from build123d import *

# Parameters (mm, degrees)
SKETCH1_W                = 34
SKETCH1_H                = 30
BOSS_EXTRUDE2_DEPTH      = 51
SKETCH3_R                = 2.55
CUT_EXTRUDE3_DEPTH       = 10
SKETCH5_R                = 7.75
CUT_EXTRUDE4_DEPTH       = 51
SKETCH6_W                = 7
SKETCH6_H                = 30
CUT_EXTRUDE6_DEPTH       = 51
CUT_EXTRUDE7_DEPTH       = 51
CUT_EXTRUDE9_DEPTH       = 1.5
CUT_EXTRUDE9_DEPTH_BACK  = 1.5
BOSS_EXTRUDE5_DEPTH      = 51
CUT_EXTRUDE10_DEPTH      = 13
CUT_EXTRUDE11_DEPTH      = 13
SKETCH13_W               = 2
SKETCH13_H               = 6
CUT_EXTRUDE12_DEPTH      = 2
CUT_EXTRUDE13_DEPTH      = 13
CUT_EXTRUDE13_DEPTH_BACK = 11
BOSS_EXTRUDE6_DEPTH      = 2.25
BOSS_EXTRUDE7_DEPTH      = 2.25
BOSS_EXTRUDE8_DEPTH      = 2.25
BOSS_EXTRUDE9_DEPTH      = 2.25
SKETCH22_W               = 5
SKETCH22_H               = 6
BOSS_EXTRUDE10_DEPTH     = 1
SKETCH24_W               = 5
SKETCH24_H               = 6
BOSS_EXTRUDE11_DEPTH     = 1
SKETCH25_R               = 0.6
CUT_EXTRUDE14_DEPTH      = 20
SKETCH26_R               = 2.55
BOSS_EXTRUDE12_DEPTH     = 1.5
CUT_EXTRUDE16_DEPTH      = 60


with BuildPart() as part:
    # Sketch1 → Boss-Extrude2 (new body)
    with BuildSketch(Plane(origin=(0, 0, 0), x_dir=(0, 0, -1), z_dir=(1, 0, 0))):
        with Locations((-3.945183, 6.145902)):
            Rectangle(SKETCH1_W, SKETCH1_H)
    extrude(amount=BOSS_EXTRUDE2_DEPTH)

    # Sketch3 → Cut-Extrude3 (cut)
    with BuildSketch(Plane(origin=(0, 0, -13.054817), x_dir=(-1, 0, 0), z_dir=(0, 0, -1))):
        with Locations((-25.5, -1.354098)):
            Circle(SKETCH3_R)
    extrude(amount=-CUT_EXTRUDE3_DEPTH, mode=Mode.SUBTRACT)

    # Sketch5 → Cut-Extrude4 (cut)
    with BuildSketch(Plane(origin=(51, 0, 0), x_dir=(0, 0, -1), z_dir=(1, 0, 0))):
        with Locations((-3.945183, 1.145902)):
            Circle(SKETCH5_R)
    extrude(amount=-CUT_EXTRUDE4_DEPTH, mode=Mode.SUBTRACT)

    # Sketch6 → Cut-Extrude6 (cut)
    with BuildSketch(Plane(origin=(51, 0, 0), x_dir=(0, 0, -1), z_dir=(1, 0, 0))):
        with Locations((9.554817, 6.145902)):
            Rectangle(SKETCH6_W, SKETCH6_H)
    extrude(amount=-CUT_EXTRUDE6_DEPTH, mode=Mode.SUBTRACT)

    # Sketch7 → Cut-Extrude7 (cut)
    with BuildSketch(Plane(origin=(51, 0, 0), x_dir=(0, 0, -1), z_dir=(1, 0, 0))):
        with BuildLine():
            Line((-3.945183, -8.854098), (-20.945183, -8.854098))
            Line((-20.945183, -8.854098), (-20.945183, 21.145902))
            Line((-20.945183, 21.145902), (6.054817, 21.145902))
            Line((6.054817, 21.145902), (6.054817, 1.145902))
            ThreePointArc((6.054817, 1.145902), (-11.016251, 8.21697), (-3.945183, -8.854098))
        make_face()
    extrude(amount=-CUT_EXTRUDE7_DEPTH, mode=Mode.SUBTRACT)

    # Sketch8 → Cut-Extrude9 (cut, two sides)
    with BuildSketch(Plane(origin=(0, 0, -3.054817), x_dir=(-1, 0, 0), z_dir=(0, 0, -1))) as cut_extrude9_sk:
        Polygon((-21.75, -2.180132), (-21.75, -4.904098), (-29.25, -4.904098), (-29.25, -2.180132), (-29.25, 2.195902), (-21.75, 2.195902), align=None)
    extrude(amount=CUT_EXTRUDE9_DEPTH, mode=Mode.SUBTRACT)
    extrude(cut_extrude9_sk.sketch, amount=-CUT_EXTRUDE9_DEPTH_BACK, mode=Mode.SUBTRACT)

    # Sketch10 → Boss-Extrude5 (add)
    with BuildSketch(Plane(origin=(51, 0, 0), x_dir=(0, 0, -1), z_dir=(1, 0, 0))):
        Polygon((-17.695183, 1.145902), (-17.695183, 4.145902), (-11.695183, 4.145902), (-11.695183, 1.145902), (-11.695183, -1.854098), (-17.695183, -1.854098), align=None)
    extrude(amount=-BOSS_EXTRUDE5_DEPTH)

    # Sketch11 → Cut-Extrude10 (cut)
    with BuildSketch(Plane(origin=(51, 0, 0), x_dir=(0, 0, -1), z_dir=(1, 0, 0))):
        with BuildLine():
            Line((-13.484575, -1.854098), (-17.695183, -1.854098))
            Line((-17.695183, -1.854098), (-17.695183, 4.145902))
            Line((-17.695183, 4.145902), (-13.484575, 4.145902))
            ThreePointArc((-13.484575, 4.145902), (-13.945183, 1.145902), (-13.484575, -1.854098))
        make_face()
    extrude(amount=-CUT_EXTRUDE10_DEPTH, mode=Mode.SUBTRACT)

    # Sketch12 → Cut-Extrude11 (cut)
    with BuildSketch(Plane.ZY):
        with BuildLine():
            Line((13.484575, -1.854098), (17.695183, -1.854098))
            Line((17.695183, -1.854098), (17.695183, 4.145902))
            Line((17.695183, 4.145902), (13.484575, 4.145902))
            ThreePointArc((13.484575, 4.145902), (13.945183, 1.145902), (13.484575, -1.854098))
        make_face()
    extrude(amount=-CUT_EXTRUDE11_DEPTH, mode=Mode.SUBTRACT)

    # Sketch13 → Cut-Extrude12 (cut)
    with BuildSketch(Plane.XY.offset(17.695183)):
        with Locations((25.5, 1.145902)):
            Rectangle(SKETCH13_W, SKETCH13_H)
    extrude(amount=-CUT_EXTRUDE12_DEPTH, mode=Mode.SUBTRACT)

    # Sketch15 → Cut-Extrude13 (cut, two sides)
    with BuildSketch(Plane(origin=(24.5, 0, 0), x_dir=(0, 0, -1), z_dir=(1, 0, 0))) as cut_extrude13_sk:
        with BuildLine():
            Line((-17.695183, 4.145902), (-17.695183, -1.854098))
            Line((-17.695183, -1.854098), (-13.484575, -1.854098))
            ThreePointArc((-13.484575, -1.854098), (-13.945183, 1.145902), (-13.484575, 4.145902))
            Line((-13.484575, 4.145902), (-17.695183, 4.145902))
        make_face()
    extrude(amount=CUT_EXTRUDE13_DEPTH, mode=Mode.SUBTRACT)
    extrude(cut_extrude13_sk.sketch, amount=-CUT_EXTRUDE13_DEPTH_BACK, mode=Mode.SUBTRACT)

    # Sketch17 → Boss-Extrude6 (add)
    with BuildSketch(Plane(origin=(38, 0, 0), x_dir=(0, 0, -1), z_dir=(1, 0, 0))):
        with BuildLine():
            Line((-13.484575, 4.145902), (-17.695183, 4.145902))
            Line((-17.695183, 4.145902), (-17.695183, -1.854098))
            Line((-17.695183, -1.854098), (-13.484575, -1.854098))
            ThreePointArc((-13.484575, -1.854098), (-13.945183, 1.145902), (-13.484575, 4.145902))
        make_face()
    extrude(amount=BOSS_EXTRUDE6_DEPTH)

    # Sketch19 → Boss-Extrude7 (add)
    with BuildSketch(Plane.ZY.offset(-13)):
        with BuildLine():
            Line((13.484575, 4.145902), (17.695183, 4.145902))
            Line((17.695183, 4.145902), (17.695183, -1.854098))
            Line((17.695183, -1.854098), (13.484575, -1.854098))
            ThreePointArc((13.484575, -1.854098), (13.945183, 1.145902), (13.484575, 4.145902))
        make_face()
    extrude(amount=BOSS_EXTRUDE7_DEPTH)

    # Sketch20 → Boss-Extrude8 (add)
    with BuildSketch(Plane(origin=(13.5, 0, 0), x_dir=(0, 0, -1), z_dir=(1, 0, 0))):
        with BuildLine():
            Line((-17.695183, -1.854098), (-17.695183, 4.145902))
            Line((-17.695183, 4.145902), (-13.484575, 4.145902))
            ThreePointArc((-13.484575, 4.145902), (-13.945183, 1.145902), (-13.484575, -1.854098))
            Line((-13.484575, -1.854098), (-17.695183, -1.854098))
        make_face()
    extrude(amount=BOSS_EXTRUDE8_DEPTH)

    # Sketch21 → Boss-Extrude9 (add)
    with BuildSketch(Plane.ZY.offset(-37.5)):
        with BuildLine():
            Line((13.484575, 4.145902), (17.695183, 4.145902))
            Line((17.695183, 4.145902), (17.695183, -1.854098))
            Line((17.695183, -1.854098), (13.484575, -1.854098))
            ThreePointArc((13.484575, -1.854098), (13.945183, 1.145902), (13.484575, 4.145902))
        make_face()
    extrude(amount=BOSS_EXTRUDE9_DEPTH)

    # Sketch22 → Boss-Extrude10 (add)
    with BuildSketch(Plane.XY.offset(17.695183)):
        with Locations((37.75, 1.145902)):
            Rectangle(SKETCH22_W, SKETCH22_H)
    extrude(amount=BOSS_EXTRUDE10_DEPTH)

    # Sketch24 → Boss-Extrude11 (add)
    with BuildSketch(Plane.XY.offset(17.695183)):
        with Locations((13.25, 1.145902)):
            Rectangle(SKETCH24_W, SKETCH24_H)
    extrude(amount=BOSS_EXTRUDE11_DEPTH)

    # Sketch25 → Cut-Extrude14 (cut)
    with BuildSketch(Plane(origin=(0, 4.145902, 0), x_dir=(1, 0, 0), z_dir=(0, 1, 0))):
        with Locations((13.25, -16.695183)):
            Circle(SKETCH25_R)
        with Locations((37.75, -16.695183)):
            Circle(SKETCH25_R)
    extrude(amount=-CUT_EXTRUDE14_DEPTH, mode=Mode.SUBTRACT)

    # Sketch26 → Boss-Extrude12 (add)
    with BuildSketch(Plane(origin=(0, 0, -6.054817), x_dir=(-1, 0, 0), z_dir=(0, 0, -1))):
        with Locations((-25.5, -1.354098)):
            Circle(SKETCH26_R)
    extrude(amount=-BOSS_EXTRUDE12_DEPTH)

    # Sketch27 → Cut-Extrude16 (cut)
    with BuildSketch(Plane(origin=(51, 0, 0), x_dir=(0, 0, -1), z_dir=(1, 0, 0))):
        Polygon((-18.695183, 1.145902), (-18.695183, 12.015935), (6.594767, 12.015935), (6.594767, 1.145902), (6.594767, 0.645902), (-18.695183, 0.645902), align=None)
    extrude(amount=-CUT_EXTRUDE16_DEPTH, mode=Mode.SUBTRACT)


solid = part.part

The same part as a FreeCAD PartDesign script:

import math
import FreeCAD as App
import Part
import Sketcher
from FreeCAD import Vector

doc = App.newDocument("Part")
body = doc.addObject("PartDesign::Body", "Body")

# Sketch on YZ plane
sketch1 = doc.addObject("Sketcher::SketchObject", "Sketch")
body.addObject(sketch1)
sketch1.AttachmentSupport = (doc.YZ_Plane, [""])
sketch1.MapMode = "FlatFace"
sketch1.addGeometry([
    Part.LineSegment(Vector(21, 21, 0), Vector(-9, 21, 0)),
    Part.LineSegment(Vector(-9, 21, 0), Vector(-9, -13, 0)),
    Part.LineSegment(Vector(-9, -13, 0), Vector(21, -13, 0)),
    Part.LineSegment(Vector(21, -13, 0), Vector(21, 21, 0)),
], False)
sketch1.addConstraint([
    Sketcher.Constraint("Coincident", 0, 2, 1, 1),
    Sketcher.Constraint("Coincident", 1, 2, 2, 1),
    Sketcher.Constraint("Coincident", 2, 2, 3, 1),
    Sketcher.Constraint("Coincident", 3, 2, 0, 1),
    Sketcher.Constraint("Horizontal", 0),
    Sketcher.Constraint("Vertical", 1),
    Sketcher.Constraint("Horizontal", 2),
    Sketcher.Constraint("Vertical", 3),
    Sketcher.Constraint("DistanceX", 0, 2, 0, 1, 30.0),
    Sketcher.Constraint("DistanceY", 1, 2, 1, 1, 34.0),
    Sketcher.Constraint("DistanceX", -1, 1, 2, 2, 21.145902),
    Sketcher.Constraint("DistanceY", -1, 1, 0, 2, 20.945183),
])
pad1 = doc.addObject("PartDesign::Pad", "Pad")
body.addObject(pad1)
pad1.Profile = sketch1
pad1.Length = 51

# Sketch on XY plane
sketch2 = doc.addObject("Sketcher::SketchObject", "Sketch001")
body.addObject(sketch2)
sketch2.AttachmentSupport = (doc.XY_Plane, [""])
sketch2.MapMode = "FlatFace"
sketch2.AttachmentOffset = App.Placement(Vector(0, 0, -13.054817), App.Rotation())
sketch2.addGeometry(Part.Circle(Vector(25.5, -1.4, 0), Vector(0, 0, 1), 2.5), False)
sketch2.addConstraint([
    Sketcher.Constraint("Diameter", 0, 5.1),
    Sketcher.Constraint("DistanceX", -1, 1, 0, 3, 25.5),
    Sketcher.Constraint("DistanceY", 0, 3, -1, 1, 1.354098),
])
pocket1 = doc.addObject("PartDesign::Pocket", "Pocket")
body.addObject(pocket1)
pocket1.Profile = sketch2
pocket1.Length = 10
pocket1.Reversed = True

# Sketch on YZ plane
sketch3 = doc.addObject("Sketcher::SketchObject", "Sketch002")
body.addObject(sketch3)
sketch3.AttachmentSupport = (doc.YZ_Plane, [""])
sketch3.MapMode = "FlatFace"
sketch3.AttachmentOffset = App.Placement(Vector(0, 0, 51), App.Rotation())
sketch3.addGeometry(Part.Circle(Vector(1, 4, 0), Vector(0, 0, 1), 8), False)
sketch3.addConstraint([
    Sketcher.Constraint("Diameter", 0, 15.5),
    Sketcher.Constraint("DistanceX", -1, 1, 0, 3, 1.145902),
    Sketcher.Constraint("DistanceY", -1, 1, 0, 3, 3.945183),
])
pocket2 = doc.addObject("PartDesign::Pocket", "Pocket001")
body.addObject(pocket2)
pocket2.Profile = sketch3
pocket2.Length = 51

# Sketch on YZ plane
sketch4 = doc.addObject("Sketcher::SketchObject", "Sketch003")
body.addObject(sketch4)
sketch4.AttachmentSupport = (doc.YZ_Plane, [""])
sketch4.MapMode = "FlatFace"
sketch4.AttachmentOffset = App.Placement(Vector(0, 0, 51), App.Rotation())
sketch4.addGeometry([
    Part.LineSegment(Vector(21, -6, 0), Vector(-9, -6, 0)),
    Part.LineSegment(Vector(-9, -6, 0), Vector(-9, -13, 0)),
    Part.LineSegment(Vector(-9, -13, 0), Vector(21, -13, 0)),
    Part.LineSegment(Vector(21, -13, 0), Vector(21, -6, 0)),
], False)
sketch4.addConstraint([
    Sketcher.Constraint("Coincident", 0, 2, 1, 1),
    Sketcher.Constraint("Coincident", 1, 2, 2, 1),
    Sketcher.Constraint("Coincident", 2, 2, 3, 1),
    Sketcher.Constraint("Coincident", 3, 2, 0, 1),
    Sketcher.Constraint("Horizontal", 0),
    Sketcher.Constraint("Vertical", 1),
    Sketcher.Constraint("Horizontal", 2),
    Sketcher.Constraint("Vertical", 3),
    Sketcher.Constraint("DistanceX", 0, 2, 0, 1, 30.0),
    Sketcher.Constraint("DistanceY", 1, 2, 1, 1, 7.0),
    Sketcher.Constraint("DistanceX", -1, 1, 2, 2, 21.145902),
    Sketcher.Constraint("DistanceY", 0, 2, -1, 1, 6.054817),
])
pocket3 = doc.addObject("PartDesign::Pocket", "Pocket002")
body.addObject(pocket3)
pocket3.Profile = sketch4
pocket3.Length = 51

# Sketch on YZ plane
sketch5 = doc.addObject("Sketcher::SketchObject", "Sketch004")
body.addObject(sketch5)
sketch5.AttachmentSupport = (doc.YZ_Plane, [""])
sketch5.MapMode = "FlatFace"
sketch5.AttachmentOffset = App.Placement(Vector(0, 0, 51), App.Rotation())
sketch5.addGeometry([
    Part.LineSegment(Vector(-9, 21, 0), Vector(-9, 4, 0)),  # 0
    Part.ArcOfCircle(Part.Circle(Vector(1, 4, 0), Vector(0, 0, 1), 10), math.radians(-90), math.radians(180)),  # 1
    Part.LineSegment(Vector(1, -6, 0), Vector(21, -6, 0)),  # 2
    Part.LineSegment(Vector(21, -6, 0), Vector(21, 21, 0)),  # 3
    Part.LineSegment(Vector(21, 21, 0), Vector(-9, 21, 0)),  # 4
], False)
sketch5.addConstraint([
    Sketcher.Constraint("Tangent", 0, 2, 1, 2),
    Sketcher.Constraint("Tangent", 1, 1, 2, 1),
    Sketcher.Constraint("Coincident", 2, 2, 3, 1),
    Sketcher.Constraint("Coincident", 3, 2, 4, 1),
    Sketcher.Constraint("Coincident", 4, 2, 0, 1),
    Sketcher.Constraint("Vertical", 0),
    Sketcher.Constraint("Horizontal", 2),
    Sketcher.Constraint("Vertical", 3),
    Sketcher.Constraint("Horizontal", 4),
    Sketcher.Constraint("Radius", 1, 10.0),
    Sketcher.Constraint("DistanceX", 2, 1, 2, 2, 20.0),
    Sketcher.Constraint("DistanceY", 0, 2, 0, 1, 17.0),
    Sketcher.Constraint("DistanceX", -1, 1, 1, 1, 1.145902),
    Sketcher.Constraint("DistanceY", -1, 1, 1, 3, 3.945183),
])
pocket4 = doc.addObject("PartDesign::Pocket", "Pocket003")
body.addObject(pocket4)
pocket4.Profile = sketch5
pocket4.Length = 51

# Sketch on XY plane
sketch6 = doc.addObject("Sketcher::SketchObject", "Sketch005")
body.addObject(sketch6)
sketch6.AttachmentSupport = (doc.XY_Plane, [""])
sketch6.MapMode = "FlatFace"
sketch6.AttachmentOffset = App.Placement(Vector(0, 0, -3.054817), App.Rotation())
sketch6.addGeometry([
    Part.LineSegment(Vector(22, -5, 0), Vector(22, 2, 0)),
    Part.LineSegment(Vector(22, 2, 0), Vector(29, 2, 0)),
    Part.LineSegment(Vector(29, 2, 0), Vector(29, -5, 0)),
    Part.LineSegment(Vector(29, -5, 0), Vector(22, -5, 0)),
], False)
sketch6.addConstraint([
    Sketcher.Constraint("Coincident", 0, 2, 1, 1),
    Sketcher.Constraint("Coincident", 1, 2, 2, 1),
    Sketcher.Constraint("Coincident", 2, 2, 3, 1),
    Sketcher.Constraint("Coincident", 3, 2, 0, 1),
    Sketcher.Constraint("Vertical", 0),
    Sketcher.Constraint("Horizontal", 1),
    Sketcher.Constraint("Vertical", 2),
    Sketcher.Constraint("Horizontal", 3),
    Sketcher.Constraint("DistanceX", 1, 1, 1, 2, 7.5),
    Sketcher.Constraint("DistanceY", 0, 1, 0, 2, 7.1),
    Sketcher.Constraint("DistanceX", -1, 1, 0, 2, 21.75),
    Sketcher.Constraint("DistanceY", -1, 1, 0, 2, 2.195902),
])
pocket5 = doc.addObject("PartDesign::Pocket", "Pocket004")
body.addObject(pocket5)
pocket5.Profile = sketch6
pocket5.Type = "TwoLengths"
pocket5.Length = 1.5
pocket5.Length2 = 1.5

# Sketch on YZ plane
sketch7 = doc.addObject("Sketcher::SketchObject", "Sketch006")
body.addObject(sketch7)
sketch7.AttachmentSupport = (doc.YZ_Plane, [""])
sketch7.MapMode = "FlatFace"
sketch7.AttachmentOffset = App.Placement(Vector(0, 0, 51), App.Rotation())
sketch7.addGeometry([
    Part.LineSegment(Vector(4, 18, 0), Vector(-2, 18, 0)),
    Part.LineSegment(Vector(-2, 18, 0), Vector(-2, 12, 0)),
    Part.LineSegment(Vector(-2, 12, 0), Vector(4, 12, 0)),
    Part.LineSegment(Vector(4, 12, 0), Vector(4, 18, 0)),
], False)
sketch7.addConstraint([
    Sketcher.Constraint("Coincident", 0, 2, 1, 1),
    Sketcher.Constraint("Coincident", 1, 2, 2, 1),
    Sketcher.Constraint("Coincident", 2, 2, 3, 1),
    Sketcher.Constraint("Coincident", 3, 2, 0, 1),
    Sketcher.Constraint("Horizontal", 0),
    Sketcher.Constraint("Vertical", 1),
    Sketcher.Constraint("Horizontal", 2),
    Sketcher.Constraint("Vertical", 3),
    Sketcher.Constraint("Equal", 2, 1),
    Sketcher.Constraint("DistanceX", 0, 2, 0, 1, 6.0),
    Sketcher.Constraint("DistanceX", 0, 2, -1, 1, 1.854098),
    Sketcher.Constraint("DistanceY", -1, 1, 0, 2, 17.695183),
])
pad2 = doc.addObject("PartDesign::Pad", "Pad001")
body.addObject(pad2)
pad2.Profile = sketch7
pad2.Length = 51
pad2.Reversed = True

# Sketch on YZ plane
sketch8 = doc.addObject("Sketcher::SketchObject", "Sketch007")
body.addObject(sketch8)
sketch8.AttachmentSupport = (doc.YZ_Plane, [""])
sketch8.MapMode = "FlatFace"
sketch8.AttachmentOffset = App.Placement(Vector(0, 0, 51), App.Rotation())
sketch8.addGeometry([
    Part.LineSegment(Vector(-1.9, 17.7, 0), Vector(-1.9, 13.5, 0)),
    Part.ArcOfCircle(Part.Circle(Vector(1.1, 3.9, 0), Vector(0, 0, 1), 10), math.radians(73), math.radians(107)),
    Part.LineSegment(Vector(4.1, 13.5, 0), Vector(4.1, 17.7, 0)),
    Part.LineSegment(Vector(4.1, 17.7, 0), Vector(-1.9, 17.7, 0)),
], False)
sketch8.addConstraint([
    Sketcher.Constraint("Coincident", 0, 2, 1, 2),
    Sketcher.Constraint("Coincident", 1, 1, 2, 1),
    Sketcher.Constraint("Coincident", 2, 2, 3, 1),
    Sketcher.Constraint("Coincident", 3, 2, 0, 1),
    Sketcher.Constraint("Vertical", 0),
    Sketcher.Constraint("Vertical", 2),
    Sketcher.Constraint("Horizontal", 3),
    Sketcher.Constraint("Horizontal", 0, 2, 1, 1),
    Sketcher.Constraint("Radius", 1, 10.0),
    Sketcher.Constraint("DistanceX", 3, 2, 3, 1, 6.0),
    Sketcher.Constraint("DistanceY", 1, 3, 2, 2, 13.75),
    Sketcher.Constraint("DistanceX", -1, 1, 1, 3, 1.145902),
    Sketcher.Constraint("DistanceY", -1, 1, 1, 3, 3.945183),
])
pocket6 = doc.addObject("PartDesign::Pocket", "Pocket005")
body.addObject(pocket6)
pocket6.Profile = sketch8
pocket6.Length = 13

# Sketch on YZ plane
sketch9 = doc.addObject("Sketcher::SketchObject", "Sketch008")
body.addObject(sketch9)
sketch9.AttachmentSupport = (doc.YZ_Plane, [""])
sketch9.MapMode = "FlatFace"
sketch9.addGeometry([
    Part.LineSegment(Vector(-1.9, 13.5, 0), Vector(-1.9, 17.7, 0)),
    Part.LineSegment(Vector(-1.9, 17.7, 0), Vector(4.1, 17.7, 0)),
    Part.LineSegment(Vector(4.1, 17.7, 0), Vector(4.1, 13.5, 0)),
    Part.ArcOfCircle(Part.Circle(Vector(1.1, 3.9, 0), Vector(0, 0, 1), 10), math.radians(73), math.radians(107)),
], False)
sketch9.addConstraint([
    Sketcher.Constraint("Coincident", 0, 2, 1, 1),
    Sketcher.Constraint("Coincident", 1, 2, 2, 1),
    Sketcher.Constraint("Coincident", 2, 2, 3, 1),
    Sketcher.Constraint("Coincident", 3, 2, 0, 1),
    Sketcher.Constraint("Vertical", 0),
    Sketcher.Constraint("Horizontal", 1),
    Sketcher.Constraint("Vertical", 2),
    Sketcher.Constraint("Horizontal", 2, 2, 3, 2),
    Sketcher.Constraint("Radius", 3, 10.0),
    Sketcher.Constraint("DistanceX", 1, 1, 1, 2, 6.0),
    Sketcher.Constraint("DistanceY", 3, 3, 0, 2, 13.75),
    Sketcher.Constraint("DistanceX", 3, 2, -1, 1, 1.854098),
    Sketcher.Constraint("DistanceY", -1, 1, 3, 3, 3.945183),
])
pocket7 = doc.addObject("PartDesign::Pocket", "Pocket006")
body.addObject(pocket7)
pocket7.Profile = sketch9
pocket7.Length = 13
pocket7.Reversed = True

# Sketch on XY plane
sketch10 = doc.addObject("Sketcher::SketchObject", "Sketch009")
body.addObject(sketch10)
sketch10.AttachmentSupport = (doc.XY_Plane, [""])
sketch10.MapMode = "FlatFace"
sketch10.AttachmentOffset = App.Placement(Vector(0, 0, 17.695183), App.Rotation())
sketch10.addGeometry([
    Part.LineSegment(Vector(24.5, 4.1, 0), Vector(24.5, -1.9, 0)),
    Part.LineSegment(Vector(24.5, -1.9, 0), Vector(26.5, -1.9, 0)),
    Part.LineSegment(Vector(26.5, -1.9, 0), Vector(26.5, 4.1, 0)),
    Part.LineSegment(Vector(26.5, 4.1, 0), Vector(24.5, 4.1, 0)),
], False)
sketch10.addConstraint([
    Sketcher.Constraint("Coincident", 0, 2, 1, 1),
    Sketcher.Constraint("Coincident", 1, 2, 2, 1),
    Sketcher.Constraint("Coincident", 2, 2, 3, 1),
    Sketcher.Constraint("Coincident", 3, 2, 0, 1),
    Sketcher.Constraint("Vertical", 0),
    Sketcher.Constraint("Horizontal", 1),
    Sketcher.Constraint("Vertical", 2),
    Sketcher.Constraint("Horizontal", 3),
    Sketcher.Constraint("DistanceX", 1, 1, 1, 2, 2.0),
    Sketcher.Constraint("DistanceY", 0, 2, 0, 1, 6.0),
    Sketcher.Constraint("DistanceX", -1, 1, 0, 2, 24.5),
    Sketcher.Constraint("DistanceY", 0, 2, -1, 1, 1.854098),
])
pocket8 = doc.addObject("PartDesign::Pocket", "Pocket007")
body.addObject(pocket8)
pocket8.Profile = sketch10
pocket8.Length = 2

# Sketch on YZ plane
sketch11 = doc.addObject("Sketcher::SketchObject", "Sketch010")
body.addObject(sketch11)
sketch11.AttachmentSupport = (doc.YZ_Plane, [""])
sketch11.MapMode = "FlatFace"
sketch11.AttachmentOffset = App.Placement(Vector(0, 0, 24.5), App.Rotation())
sketch11.addGeometry([
    Part.LineSegment(Vector(4.1, 17.7, 0), Vector(-1.9, 17.7, 0)),
    Part.LineSegment(Vector(-1.9, 17.7, 0), Vector(-1.9, 13.5, 0)),
    Part.ArcOfCircle(Part.Circle(Vector(1.1, 3.9, 0), Vector(0, 0, 1), 10), math.radians(73), math.radians(107)),
    Part.LineSegment(Vector(4.1, 13.5, 0), Vector(4.1, 17.7, 0)),
], False)
sketch11.addConstraint([
    Sketcher.Constraint("Coincident", 0, 2, 1, 1),
    Sketcher.Constraint("Coincident", 1, 2, 2, 2),
    Sketcher.Constraint("Coincident", 2, 1, 3, 1),
    Sketcher.Constraint("Coincident", 3, 2, 0, 1),
    Sketcher.Constraint("Horizontal", 0),
    Sketcher.Constraint("Vertical", 1),
    Sketcher.Constraint("Vertical", 3),
    Sketcher.Constraint("Horizontal", 1, 2, 2, 1),
    Sketcher.Constraint("Radius", 2, 10.0),
    Sketcher.Constraint("DistanceX", 0, 2, 0, 1, 6.0),
    Sketcher.Constraint("DistanceY", 2, 3, 0, 2, 13.75),
    Sketcher.Constraint("DistanceX", -1, 1, 2, 3, 1.145902),
    Sketcher.Constraint("DistanceY", -1, 1, 2, 3, 3.945183),
])
pocket9 = doc.addObject("PartDesign::Pocket", "Pocket008")
body.addObject(pocket9)
pocket9.Profile = sketch11
pocket9.Type = "TwoLengths"
pocket9.Length = 13
pocket9.Length2 = 11
pocket9.Reversed = True

# Sketch on YZ plane
sketch12 = doc.addObject("Sketcher::SketchObject", "Sketch011")
body.addObject(sketch12)
sketch12.AttachmentSupport = (doc.YZ_Plane, [""])
sketch12.MapMode = "FlatFace"
sketch12.AttachmentOffset = App.Placement(Vector(0, 0, 38), App.Rotation())
sketch12.addGeometry([
    Part.LineSegment(Vector(4.1, 13.5, 0), Vector(4.1, 17.7, 0)),
    Part.LineSegment(Vector(4.1, 17.7, 0), Vector(-1.9, 17.7, 0)),
    Part.LineSegment(Vector(-1.9, 17.7, 0), Vector(-1.9, 13.5, 0)),
    Part.ArcOfCircle(Part.Circle(Vector(1.1, 3.9, 0), Vector(0, 0, 1), 10), math.radians(73), math.radians(107)),
], False)
sketch12.addConstraint([
    Sketcher.Constraint("Coincident", 0, 2, 1, 1),
    Sketcher.Constraint("Coincident", 1, 2, 2, 1),
    Sketcher.Constraint("Coincident", 2, 2, 3, 2),
    Sketcher.Constraint("Coincident", 3, 1, 0, 1),
    Sketcher.Constraint("Vertical", 0),
    Sketcher.Constraint("Horizontal", 1),
    Sketcher.Constraint("Vertical", 2),
    Sketcher.Constraint("Horizontal", 2, 2, 3, 1),
    Sketcher.Constraint("Radius", 3, 10.0),
    Sketcher.Constraint("DistanceX", 1, 2, 1, 1, 6.0),
    Sketcher.Constraint("DistanceY", 3, 3, 0, 2, 13.75),
    Sketcher.Constraint("DistanceX", -1, 1, 3, 3, 1.145902),
    Sketcher.Constraint("DistanceY", -1, 1, 3, 3, 3.945183),
])
pad3 = doc.addObject("PartDesign::Pad", "Pad002")
body.addObject(pad3)
pad3.Profile = sketch12
pad3.Length = 2.25

# Sketch on YZ plane
sketch13 = doc.addObject("Sketcher::SketchObject", "Sketch012")
body.addObject(sketch13)
sketch13.AttachmentSupport = (doc.YZ_Plane, [""])
sketch13.MapMode = "FlatFace"
sketch13.AttachmentOffset = App.Placement(Vector(0, 0, 13), App.Rotation())
sketch13.addGeometry([
    Part.LineSegment(Vector(4.1, 17.7, 0), Vector(4.1, 13.5, 0)),
    Part.ArcOfCircle(Part.Circle(Vector(1.1, 3.9, 0), Vector(0, 0, 1), 10), math.radians(73), math.radians(107)),
    Part.LineSegment(Vector(-1.9, 13.5, 0), Vector(-1.9, 17.7, 0)),
    Part.LineSegment(Vector(-1.9, 17.7, 0), Vector(4.1, 17.7, 0)),
], False)
sketch13.addConstraint([
    Sketcher.Constraint("Coincident", 0, 2, 1, 1),
    Sketcher.Constraint("Coincident", 1, 2, 2, 1),
    Sketcher.Constraint("Coincident", 2, 2, 3, 1),
    Sketcher.Constraint("Coincident", 3, 2, 0, 1),
    Sketcher.Constraint("Vertical", 0),
    Sketcher.Constraint("Vertical", 2),
    Sketcher.Constraint("Horizontal", 3),
    Sketcher.Constraint("Horizontal", 0, 2, 1, 2),
    Sketcher.Constraint("Radius", 1, 10.0),
    Sketcher.Constraint("DistanceX", 3, 1, 3, 2, 6.0),
    Sketcher.Constraint("DistanceY", 1, 3, 2, 2, 13.75),
    Sketcher.Constraint("DistanceX", 1, 2, -1, 1, 1.854098),
    Sketcher.Constraint("DistanceY", -1, 1, 1, 3, 3.945183),
])
pad4 = doc.addObject("PartDesign::Pad", "Pad003")
body.addObject(pad4)
pad4.Profile = sketch13
pad4.Length = 2.25
pad4.Reversed = True

# Sketch on YZ plane
sketch14 = doc.addObject("Sketcher::SketchObject", "Sketch013")
body.addObject(sketch14)
sketch14.AttachmentSupport = (doc.YZ_Plane, [""])
sketch14.MapMode = "FlatFace"
sketch14.AttachmentOffset = App.Placement(Vector(0, 0, 13.5), App.Rotation())
sketch14.addGeometry([
    Part.LineSegment(Vector(4.1, 17.7, 0), Vector(-1.9, 17.7, 0)),
    Part.LineSegment(Vector(-1.9, 17.7, 0), Vector(-1.9, 13.5, 0)),
    Part.ArcOfCircle(Part.Circle(Vector(1.1, 3.9, 0), Vector(0, 0, 1), 10), math.radians(73), math.radians(107)),
    Part.LineSegment(Vector(4.1, 13.5, 0), Vector(4.1, 17.7, 0)),
], False)
sketch14.addConstraint([
    Sketcher.Constraint("Coincident", 0, 2, 1, 1),
    Sketcher.Constraint("Coincident", 1, 2, 2, 2),
    Sketcher.Constraint("Coincident", 2, 1, 3, 1),
    Sketcher.Constraint("Coincident", 3, 2, 0, 1),
    Sketcher.Constraint("Horizontal", 0),
    Sketcher.Constraint("Vertical", 1),
    Sketcher.Constraint("Vertical", 3),
    Sketcher.Constraint("Horizontal", 1, 2, 2, 1),
    Sketcher.Constraint("Radius", 2, 10.0),
    Sketcher.Constraint("DistanceX", 0, 2, 0, 1, 6.0),
    Sketcher.Constraint("DistanceY", 2, 3, 0, 2, 13.75),
    Sketcher.Constraint("DistanceX", -1, 1, 2, 3, 1.145902),
    Sketcher.Constraint("DistanceY", -1, 1, 2, 3, 3.945183),
])
pad5 = doc.addObject("PartDesign::Pad", "Pad004")
body.addObject(pad5)
pad5.Profile = sketch14
pad5.Length = 2.25

# Sketch on YZ plane
sketch15 = doc.addObject("Sketcher::SketchObject", "Sketch014")
body.addObject(sketch15)
sketch15.AttachmentSupport = (doc.YZ_Plane, [""])
sketch15.MapMode = "FlatFace"
sketch15.AttachmentOffset = App.Placement(Vector(0, 0, 37.5), App.Rotation())
sketch15.addGeometry([
    Part.LineSegment(Vector(4.1, 17.7, 0), Vector(4.1, 13.5, 0)),
    Part.ArcOfCircle(Part.Circle(Vector(1.1, 3.9, 0), Vector(0, 0, 1), 10), math.radians(73), math.radians(107)),
    Part.LineSegment(Vector(-1.9, 13.5, 0), Vector(-1.9, 17.7, 0)),
    Part.LineSegment(Vector(-1.9, 17.7, 0), Vector(4.1, 17.7, 0)),
], False)
sketch15.addConstraint([
    Sketcher.Constraint("Coincident", 0, 2, 1, 1),
    Sketcher.Constraint("Coincident", 1, 2, 2, 1),
    Sketcher.Constraint("Coincident", 2, 2, 3, 1),
    Sketcher.Constraint("Coincident", 3, 2, 0, 1),
    Sketcher.Constraint("Vertical", 0),
    Sketcher.Constraint("Vertical", 2),
    Sketcher.Constraint("Horizontal", 3),
    Sketcher.Constraint("Horizontal", 0, 2, 1, 2),
    Sketcher.Constraint("Radius", 1, 10.0),
    Sketcher.Constraint("DistanceX", 3, 1, 3, 2, 6.0),
    Sketcher.Constraint("DistanceY", 1, 3, 2, 2, 13.75),
    Sketcher.Constraint("DistanceX", 1, 2, -1, 1, 1.854098),
    Sketcher.Constraint("DistanceY", -1, 1, 1, 3, 3.945183),
])
pad6 = doc.addObject("PartDesign::Pad", "Pad005")
body.addObject(pad6)
pad6.Profile = sketch15
pad6.Length = 2.25
pad6.Reversed = True

# Sketch on XY plane
sketch16 = doc.addObject("Sketcher::SketchObject", "Sketch015")
body.addObject(sketch16)
sketch16.AttachmentSupport = (doc.XY_Plane, [""])
sketch16.MapMode = "FlatFace"
sketch16.AttachmentOffset = App.Placement(Vector(0, 0, 17.695183), App.Rotation())
sketch16.addGeometry([
    Part.LineSegment(Vector(35, 4, 0), Vector(35, -2, 0)),
    Part.LineSegment(Vector(35, -2, 0), Vector(40, -2, 0)),
    Part.LineSegment(Vector(40, -2, 0), Vector(40, 4, 0)),
    Part.LineSegment(Vector(40, 4, 0), Vector(35, 4, 0)),
], False)
sketch16.addConstraint([
    Sketcher.Constraint("Coincident", 0, 2, 1, 1),
    Sketcher.Constraint("Coincident", 1, 2, 2, 1),
    Sketcher.Constraint("Coincident", 2, 2, 3, 1),
    Sketcher.Constraint("Coincident", 3, 2, 0, 1),
    Sketcher.Constraint("Vertical", 0),
    Sketcher.Constraint("Horizontal", 1),
    Sketcher.Constraint("Vertical", 2),
    Sketcher.Constraint("Horizontal", 3),
    Sketcher.Constraint("DistanceX", 1, 1, 1, 2, 5.0),
    Sketcher.Constraint("DistanceY", 0, 2, 0, 1, 6.0),
    Sketcher.Constraint("DistanceX", -1, 1, 0, 2, 35.25),
    Sketcher.Constraint("DistanceY", 0, 2, -1, 1, 1.854098),
])
pad7 = doc.addObject("PartDesign::Pad", "Pad006")
body.addObject(pad7)
pad7.Profile = sketch16
pad7.Length = 1

# Sketch on XY plane
sketch17 = doc.addObject("Sketcher::SketchObject", "Sketch016")
body.addObject(sketch17)
sketch17.AttachmentSupport = (doc.XY_Plane, [""])
sketch17.MapMode = "FlatFace"
sketch17.AttachmentOffset = App.Placement(Vector(0, 0, 17.695183), App.Rotation())
sketch17.addGeometry([
    Part.LineSegment(Vector(11, 4, 0), Vector(11, -2, 0)),
    Part.LineSegment(Vector(11, -2, 0), Vector(16, -2, 0)),
    Part.LineSegment(Vector(16, -2, 0), Vector(16, 4, 0)),
    Part.LineSegment(Vector(16, 4, 0), Vector(11, 4, 0)),
], False)
sketch17.addConstraint([
    Sketcher.Constraint("Coincident", 0, 2, 1, 1),
    Sketcher.Constraint("Coincident", 1, 2, 2, 1),
    Sketcher.Constraint("Coincident", 2, 2, 3, 1),
    Sketcher.Constraint("Coincident", 3, 2, 0, 1),
    Sketcher.Constraint("Vertical", 0),
    Sketcher.Constraint("Horizontal", 1),
    Sketcher.Constraint("Vertical", 2),
    Sketcher.Constraint("Horizontal", 3),
    Sketcher.Constraint("DistanceX", 1, 1, 1, 2, 5.0),
    Sketcher.Constraint("DistanceY", 0, 2, 0, 1, 6.0),
    Sketcher.Constraint("DistanceX", -1, 1, 0, 2, 10.75),
    Sketcher.Constraint("DistanceY", 0, 2, -1, 1, 1.854098),
])
pad8 = doc.addObject("PartDesign::Pad", "Pad007")
body.addObject(pad8)
pad8.Profile = sketch17
pad8.Length = 1

# Sketch on XZ plane
sketch18 = doc.addObject("Sketcher::SketchObject", "Sketch017")
body.addObject(sketch18)
sketch18.AttachmentSupport = (doc.XZ_Plane, [""])
sketch18.MapMode = "FlatFace"
sketch18.AttachmentOffset = App.Placement(Vector(0, 0, -4.145902), App.Rotation())
sketch18.addGeometry([
    Part.Circle(Vector(13.2, 16.7, 0), Vector(0, 0, 1), 0.6),
    Part.Circle(Vector(37.8, 16.7, 0), Vector(0, 0, 1), 0.6),
], False)
sketch18.addConstraint([
    Sketcher.Constraint("Equal", 0, 1),
    Sketcher.Constraint("Horizontal", 0, 3, 1, 3),
    Sketcher.Constraint("Diameter", 0, 1.2),
    Sketcher.Constraint("DistanceX", 0, 3, 1, 3, 24.5),
    Sketcher.Constraint("DistanceX", -1, 1, 0, 3, 13.25),
    Sketcher.Constraint("DistanceY", -1, 1, 0, 3, 16.695183),
])
pocket10 = doc.addObject("PartDesign::Pocket", "Pocket009")
body.addObject(pocket10)
pocket10.Profile = sketch18
pocket10.Length = 20
pocket10.Reversed = True

# Sketch on XY plane
sketch19 = doc.addObject("Sketcher::SketchObject", "Sketch018")
body.addObject(sketch19)
sketch19.AttachmentSupport = (doc.XY_Plane, [""])
sketch19.MapMode = "FlatFace"
sketch19.AttachmentOffset = App.Placement(Vector(0, 0, -6.054817), App.Rotation())
sketch19.addGeometry(Part.Circle(Vector(25.5, -1.4, 0), Vector(0, 0, 1), 2.5), False)
sketch19.addConstraint([
    Sketcher.Constraint("Diameter", 0, 5.1),
    Sketcher.Constraint("DistanceX", -1, 1, 0, 3, 25.5),
    Sketcher.Constraint("DistanceY", 0, 3, -1, 1, 1.354098),
])
pad9 = doc.addObject("PartDesign::Pad", "Pad008")
body.addObject(pad9)
pad9.Profile = sketch19
pad9.Length = 1.5

# Sketch on YZ plane
sketch20 = doc.addObject("Sketcher::SketchObject", "Sketch019")
body.addObject(sketch20)
sketch20.AttachmentSupport = (doc.YZ_Plane, [""])
sketch20.MapMode = "FlatFace"
sketch20.AttachmentOffset = App.Placement(Vector(0, 0, 51), App.Rotation())
sketch20.addGeometry([
    Part.LineSegment(Vector(12, 19, 0), Vector(1, 19, 0)),
    Part.LineSegment(Vector(1, 19, 0), Vector(1, -7, 0)),
    Part.LineSegment(Vector(1, -7, 0), Vector(12, -7, 0)),
    Part.LineSegment(Vector(12, -7, 0), Vector(12, 19, 0)),
], False)
sketch20.addConstraint([
    Sketcher.Constraint("Coincident", 0, 2, 1, 1),
    Sketcher.Constraint("Coincident", 1, 2, 2, 1),
    Sketcher.Constraint("Coincident", 2, 2, 3, 1),
    Sketcher.Constraint("Coincident", 3, 2, 0, 1),
    Sketcher.Constraint("Horizontal", 0),
    Sketcher.Constraint("Vertical", 1),
    Sketcher.Constraint("Horizontal", 2),
    Sketcher.Constraint("Vertical", 3),
    Sketcher.Constraint("DistanceY", 1, 2, 1, 1, 25.28995),
    Sketcher.Constraint("DistanceX", -1, 1, 0, 2, 0.645902),
    Sketcher.Constraint("DistanceX", 0, 2, 0, 1, 11.370033),
    Sketcher.Constraint("DistanceY", -1, 1, 0, 2, 18.695183),
])
pocket11 = doc.addObject("PartDesign::Pocket", "Pocket010")
body.addObject(pocket11)
pocket11.Profile = sketch20
pocket11.Length = 60

doc.recompute()
